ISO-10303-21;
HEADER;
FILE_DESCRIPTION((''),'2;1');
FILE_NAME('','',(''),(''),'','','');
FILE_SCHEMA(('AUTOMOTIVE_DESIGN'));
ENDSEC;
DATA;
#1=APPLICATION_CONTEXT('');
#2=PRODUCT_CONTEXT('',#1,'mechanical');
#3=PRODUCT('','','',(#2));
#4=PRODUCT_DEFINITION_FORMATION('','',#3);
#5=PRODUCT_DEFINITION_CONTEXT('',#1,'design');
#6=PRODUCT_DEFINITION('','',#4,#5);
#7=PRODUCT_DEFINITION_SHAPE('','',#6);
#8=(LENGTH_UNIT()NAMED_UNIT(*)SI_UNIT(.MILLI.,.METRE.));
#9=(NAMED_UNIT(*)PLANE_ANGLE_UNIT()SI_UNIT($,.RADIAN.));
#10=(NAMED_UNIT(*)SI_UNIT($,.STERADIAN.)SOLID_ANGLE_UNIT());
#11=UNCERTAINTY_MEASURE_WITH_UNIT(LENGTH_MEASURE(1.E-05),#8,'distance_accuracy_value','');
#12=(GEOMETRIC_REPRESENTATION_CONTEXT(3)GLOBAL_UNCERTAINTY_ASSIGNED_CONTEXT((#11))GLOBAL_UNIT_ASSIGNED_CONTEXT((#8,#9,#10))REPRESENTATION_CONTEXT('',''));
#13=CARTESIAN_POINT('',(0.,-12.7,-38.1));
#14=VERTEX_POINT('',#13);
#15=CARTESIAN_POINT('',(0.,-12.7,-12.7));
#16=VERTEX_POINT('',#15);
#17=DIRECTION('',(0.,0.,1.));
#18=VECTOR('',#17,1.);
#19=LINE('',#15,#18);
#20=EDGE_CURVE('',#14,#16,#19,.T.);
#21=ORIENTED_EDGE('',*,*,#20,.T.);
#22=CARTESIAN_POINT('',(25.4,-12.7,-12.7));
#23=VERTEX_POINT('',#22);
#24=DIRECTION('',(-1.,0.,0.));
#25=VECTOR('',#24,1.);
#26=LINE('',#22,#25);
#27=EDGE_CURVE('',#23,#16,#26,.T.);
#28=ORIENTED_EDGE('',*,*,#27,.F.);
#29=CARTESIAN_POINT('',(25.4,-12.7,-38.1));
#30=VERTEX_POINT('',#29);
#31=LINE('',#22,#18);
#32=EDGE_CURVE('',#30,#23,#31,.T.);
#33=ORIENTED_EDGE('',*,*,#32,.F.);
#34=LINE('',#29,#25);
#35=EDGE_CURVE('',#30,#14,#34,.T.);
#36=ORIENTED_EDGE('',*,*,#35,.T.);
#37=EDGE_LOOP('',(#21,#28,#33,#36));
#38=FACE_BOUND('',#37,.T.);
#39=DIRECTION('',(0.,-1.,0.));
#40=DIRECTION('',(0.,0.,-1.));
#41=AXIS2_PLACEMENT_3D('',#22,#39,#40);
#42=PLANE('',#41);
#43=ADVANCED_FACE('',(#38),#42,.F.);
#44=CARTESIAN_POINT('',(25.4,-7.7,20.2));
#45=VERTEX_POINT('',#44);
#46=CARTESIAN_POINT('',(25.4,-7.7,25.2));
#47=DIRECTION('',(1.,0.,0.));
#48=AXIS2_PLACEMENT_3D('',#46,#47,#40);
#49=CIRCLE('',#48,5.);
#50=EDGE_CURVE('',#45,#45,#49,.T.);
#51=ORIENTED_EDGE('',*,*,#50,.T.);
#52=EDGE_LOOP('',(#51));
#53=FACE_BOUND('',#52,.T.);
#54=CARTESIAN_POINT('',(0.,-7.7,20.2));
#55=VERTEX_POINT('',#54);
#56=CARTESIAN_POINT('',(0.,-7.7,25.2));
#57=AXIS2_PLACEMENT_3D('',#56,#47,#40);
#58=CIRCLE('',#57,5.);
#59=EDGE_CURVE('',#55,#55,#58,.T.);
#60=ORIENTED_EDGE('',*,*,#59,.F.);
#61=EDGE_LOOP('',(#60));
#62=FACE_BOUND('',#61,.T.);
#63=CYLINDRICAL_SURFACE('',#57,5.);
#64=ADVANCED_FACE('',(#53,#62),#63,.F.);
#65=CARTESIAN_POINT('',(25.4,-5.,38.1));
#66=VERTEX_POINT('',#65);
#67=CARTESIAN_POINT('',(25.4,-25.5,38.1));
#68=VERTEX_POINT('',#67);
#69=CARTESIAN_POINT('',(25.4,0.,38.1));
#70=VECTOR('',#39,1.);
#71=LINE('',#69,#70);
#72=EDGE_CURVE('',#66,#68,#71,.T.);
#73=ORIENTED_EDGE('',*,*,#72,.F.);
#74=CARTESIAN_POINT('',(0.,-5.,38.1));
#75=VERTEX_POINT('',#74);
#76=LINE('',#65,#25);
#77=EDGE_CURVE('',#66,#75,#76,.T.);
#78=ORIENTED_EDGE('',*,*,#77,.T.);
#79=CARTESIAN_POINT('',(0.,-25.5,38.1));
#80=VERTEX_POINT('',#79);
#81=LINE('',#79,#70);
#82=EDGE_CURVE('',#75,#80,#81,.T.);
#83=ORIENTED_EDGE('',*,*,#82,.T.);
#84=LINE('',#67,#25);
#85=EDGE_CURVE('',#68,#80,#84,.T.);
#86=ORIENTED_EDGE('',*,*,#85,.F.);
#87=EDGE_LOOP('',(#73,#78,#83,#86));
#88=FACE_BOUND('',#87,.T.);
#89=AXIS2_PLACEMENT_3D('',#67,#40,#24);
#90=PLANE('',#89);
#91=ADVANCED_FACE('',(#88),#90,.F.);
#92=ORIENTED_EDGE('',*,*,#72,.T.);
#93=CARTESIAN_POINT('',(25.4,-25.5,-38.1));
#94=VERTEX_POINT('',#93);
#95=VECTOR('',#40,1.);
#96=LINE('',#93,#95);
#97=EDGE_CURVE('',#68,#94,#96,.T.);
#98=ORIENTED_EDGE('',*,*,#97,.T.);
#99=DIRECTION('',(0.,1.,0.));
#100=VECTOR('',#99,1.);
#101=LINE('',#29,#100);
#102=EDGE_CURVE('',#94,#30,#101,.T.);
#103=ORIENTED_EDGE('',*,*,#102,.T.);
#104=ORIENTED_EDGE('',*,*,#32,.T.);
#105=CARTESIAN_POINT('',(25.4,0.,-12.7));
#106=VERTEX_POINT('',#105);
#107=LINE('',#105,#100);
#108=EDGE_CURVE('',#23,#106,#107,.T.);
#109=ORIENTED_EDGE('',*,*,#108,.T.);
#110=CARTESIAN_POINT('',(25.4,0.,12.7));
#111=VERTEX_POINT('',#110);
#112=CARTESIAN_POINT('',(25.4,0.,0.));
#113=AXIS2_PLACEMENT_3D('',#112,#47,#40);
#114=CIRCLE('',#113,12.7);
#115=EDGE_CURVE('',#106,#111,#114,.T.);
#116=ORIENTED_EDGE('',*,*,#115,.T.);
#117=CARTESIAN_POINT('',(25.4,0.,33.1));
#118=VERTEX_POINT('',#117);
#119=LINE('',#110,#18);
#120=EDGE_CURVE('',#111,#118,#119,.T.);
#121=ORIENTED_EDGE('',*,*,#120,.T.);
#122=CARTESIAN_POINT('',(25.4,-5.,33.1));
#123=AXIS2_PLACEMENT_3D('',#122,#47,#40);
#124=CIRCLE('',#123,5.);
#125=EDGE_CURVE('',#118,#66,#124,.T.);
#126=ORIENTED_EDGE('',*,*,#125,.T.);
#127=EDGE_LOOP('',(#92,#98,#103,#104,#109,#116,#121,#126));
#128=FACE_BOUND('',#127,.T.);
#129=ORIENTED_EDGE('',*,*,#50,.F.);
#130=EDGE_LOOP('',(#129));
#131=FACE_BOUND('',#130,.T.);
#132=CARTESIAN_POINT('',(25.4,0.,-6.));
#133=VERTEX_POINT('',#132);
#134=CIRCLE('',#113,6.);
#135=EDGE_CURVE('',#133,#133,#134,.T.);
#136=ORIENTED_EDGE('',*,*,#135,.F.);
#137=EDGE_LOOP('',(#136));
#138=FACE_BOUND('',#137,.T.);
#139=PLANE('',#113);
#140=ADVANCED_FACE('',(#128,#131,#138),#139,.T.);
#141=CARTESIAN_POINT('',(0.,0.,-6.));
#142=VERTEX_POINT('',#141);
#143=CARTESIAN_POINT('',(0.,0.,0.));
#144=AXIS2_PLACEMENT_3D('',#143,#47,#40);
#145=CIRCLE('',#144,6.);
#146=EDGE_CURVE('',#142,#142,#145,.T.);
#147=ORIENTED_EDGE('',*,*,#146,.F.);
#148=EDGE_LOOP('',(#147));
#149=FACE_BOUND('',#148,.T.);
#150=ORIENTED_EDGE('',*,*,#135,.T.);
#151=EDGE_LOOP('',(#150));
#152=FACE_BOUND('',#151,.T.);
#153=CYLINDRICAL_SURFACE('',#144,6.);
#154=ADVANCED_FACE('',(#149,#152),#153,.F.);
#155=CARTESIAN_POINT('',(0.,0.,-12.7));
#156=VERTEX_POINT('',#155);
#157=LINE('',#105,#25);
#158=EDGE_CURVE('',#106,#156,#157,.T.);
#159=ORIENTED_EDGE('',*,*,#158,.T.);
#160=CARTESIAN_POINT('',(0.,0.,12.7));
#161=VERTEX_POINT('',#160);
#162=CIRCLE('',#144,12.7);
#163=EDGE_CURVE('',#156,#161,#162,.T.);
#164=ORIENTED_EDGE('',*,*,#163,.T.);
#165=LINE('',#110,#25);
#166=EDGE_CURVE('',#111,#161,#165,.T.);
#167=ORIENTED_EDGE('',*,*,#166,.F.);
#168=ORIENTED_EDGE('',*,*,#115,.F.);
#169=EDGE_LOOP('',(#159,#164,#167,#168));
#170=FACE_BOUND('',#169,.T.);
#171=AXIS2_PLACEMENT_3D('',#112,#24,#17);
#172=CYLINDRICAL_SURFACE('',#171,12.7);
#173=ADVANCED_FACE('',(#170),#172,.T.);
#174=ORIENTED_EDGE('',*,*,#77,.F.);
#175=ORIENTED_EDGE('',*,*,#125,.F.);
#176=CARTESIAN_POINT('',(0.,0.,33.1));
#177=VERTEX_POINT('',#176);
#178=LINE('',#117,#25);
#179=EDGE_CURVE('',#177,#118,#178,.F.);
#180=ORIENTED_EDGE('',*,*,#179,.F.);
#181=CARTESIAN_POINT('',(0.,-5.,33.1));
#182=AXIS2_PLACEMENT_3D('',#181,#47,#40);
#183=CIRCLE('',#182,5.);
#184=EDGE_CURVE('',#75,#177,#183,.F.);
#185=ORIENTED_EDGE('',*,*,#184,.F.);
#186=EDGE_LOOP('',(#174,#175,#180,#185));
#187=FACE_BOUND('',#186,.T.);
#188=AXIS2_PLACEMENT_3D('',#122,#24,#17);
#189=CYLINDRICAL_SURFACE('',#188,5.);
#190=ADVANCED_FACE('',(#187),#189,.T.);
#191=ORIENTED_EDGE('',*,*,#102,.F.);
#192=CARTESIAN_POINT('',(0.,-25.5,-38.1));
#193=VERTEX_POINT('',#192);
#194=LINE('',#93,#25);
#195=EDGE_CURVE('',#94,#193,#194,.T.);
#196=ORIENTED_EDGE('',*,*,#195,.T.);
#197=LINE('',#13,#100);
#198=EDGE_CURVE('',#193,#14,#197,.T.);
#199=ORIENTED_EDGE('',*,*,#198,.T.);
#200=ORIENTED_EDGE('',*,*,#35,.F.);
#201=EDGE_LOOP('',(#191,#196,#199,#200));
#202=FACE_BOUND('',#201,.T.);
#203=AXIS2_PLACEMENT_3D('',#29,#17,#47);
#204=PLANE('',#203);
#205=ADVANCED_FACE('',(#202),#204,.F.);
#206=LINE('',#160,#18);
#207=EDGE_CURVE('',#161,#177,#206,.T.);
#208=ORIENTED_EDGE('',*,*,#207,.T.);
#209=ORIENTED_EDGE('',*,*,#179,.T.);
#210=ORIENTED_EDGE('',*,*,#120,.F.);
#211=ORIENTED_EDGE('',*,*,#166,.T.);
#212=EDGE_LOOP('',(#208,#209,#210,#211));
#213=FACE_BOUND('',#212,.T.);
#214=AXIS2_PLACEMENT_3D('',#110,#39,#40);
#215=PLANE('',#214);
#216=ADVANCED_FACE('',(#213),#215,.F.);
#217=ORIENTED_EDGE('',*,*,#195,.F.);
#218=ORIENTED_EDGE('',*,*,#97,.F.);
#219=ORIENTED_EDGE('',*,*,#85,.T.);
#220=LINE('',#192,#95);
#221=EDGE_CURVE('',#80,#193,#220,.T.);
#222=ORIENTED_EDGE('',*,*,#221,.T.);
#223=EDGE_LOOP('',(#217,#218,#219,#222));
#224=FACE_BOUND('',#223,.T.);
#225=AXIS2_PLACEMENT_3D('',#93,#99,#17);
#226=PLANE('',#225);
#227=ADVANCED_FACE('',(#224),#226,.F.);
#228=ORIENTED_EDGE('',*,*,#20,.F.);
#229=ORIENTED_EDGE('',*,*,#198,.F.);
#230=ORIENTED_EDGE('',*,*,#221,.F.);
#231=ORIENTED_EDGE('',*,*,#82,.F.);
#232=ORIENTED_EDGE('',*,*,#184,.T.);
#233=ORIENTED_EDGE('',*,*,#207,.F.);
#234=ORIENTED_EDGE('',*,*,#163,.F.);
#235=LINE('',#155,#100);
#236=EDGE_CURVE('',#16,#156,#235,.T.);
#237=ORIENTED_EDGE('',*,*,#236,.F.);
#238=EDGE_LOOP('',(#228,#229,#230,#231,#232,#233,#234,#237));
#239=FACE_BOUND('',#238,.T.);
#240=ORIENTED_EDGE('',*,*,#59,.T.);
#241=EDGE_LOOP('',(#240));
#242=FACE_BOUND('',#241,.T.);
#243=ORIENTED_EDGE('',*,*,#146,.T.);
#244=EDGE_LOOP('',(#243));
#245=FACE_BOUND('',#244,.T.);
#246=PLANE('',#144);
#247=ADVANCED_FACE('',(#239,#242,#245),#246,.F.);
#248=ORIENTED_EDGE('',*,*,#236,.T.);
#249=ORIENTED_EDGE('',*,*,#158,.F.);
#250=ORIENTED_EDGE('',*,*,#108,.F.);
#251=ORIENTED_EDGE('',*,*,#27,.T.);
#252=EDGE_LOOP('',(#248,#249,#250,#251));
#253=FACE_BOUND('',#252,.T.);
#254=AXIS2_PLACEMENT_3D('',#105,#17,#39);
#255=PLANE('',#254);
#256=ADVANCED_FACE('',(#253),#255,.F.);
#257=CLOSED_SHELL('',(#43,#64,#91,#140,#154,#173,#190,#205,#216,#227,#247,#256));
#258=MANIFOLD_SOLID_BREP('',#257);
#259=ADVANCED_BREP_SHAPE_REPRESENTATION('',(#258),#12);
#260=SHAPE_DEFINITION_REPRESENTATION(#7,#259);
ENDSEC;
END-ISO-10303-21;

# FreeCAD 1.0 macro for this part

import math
import FreeCAD as App
import Part
import Sketcher
from FreeCAD import Vector
Q = App.Units.Quantity


def edges_at(feature, points):
    """Names of the edges that pass closest to the given points."""
    edges = feature.Shape.Edges
    near = lambda p: min(range(len(edges)), key=lambda i: edges[i].distToShape(Part.Vertex(*p))[0])
    return sorted({f"Edge{near(p) + 1}" for p in points})

doc = App.newDocument("Part")
body = doc.addObject("PartDesign::Body", "Body")

# Sketch on YZ plane
sketch1 = body.newObject("Sketcher::SketchObject", "Sketch")
sketch1.AttachmentSupport = (doc.getObject("YZ_Plane"), [""])
sketch1.MapMode = "FlatFace"
sketch1.addGeometry([
    Part.LineSegment(Vector(-13, -13, 0), Vector(0, -13, 0)),  # 0
    Part.ArcOfCircle(Part.Circle(Vector(0, 0, 0), Vector(0, 0, 1), 13), math.radians(-90), math.radians(90)),  # 1
    Part.LineSegment(Vector(0, 13, 0), Vector(0, 38, 0)),  # 2
    Part.LineSegment(Vector(0, 38, 0), Vector(-26, 38, 0)),  # 3
    Part.LineSegment(Vector(-26, 38, 0), Vector(-26, -38, 0)),  # 4
    Part.LineSegment(Vector(-26, -38, 0), Vector(-13, -38, 0)),  # 5
    Part.LineSegment(Vector(-13, -38, 0), Vector(-13, -13, 0)),  # 6
], False)
sketch1.addConstraint([
    Sketcher.Constraint("Tangent", 0, 2, 1, 1),
    Sketcher.Constraint("Coincident", 1, 2, 2, 1),
    Sketcher.Constraint("Coincident", 2, 2, 3, 1),
    Sketcher.Constraint("Coincident", 3, 2, 4, 1),
    Sketcher.Constraint("Coincident", 4, 2, 5, 1),
    Sketcher.Constraint("Coincident", 5, 2, 6, 1),
    Sketcher.Constraint("Coincident", 6, 2, 0, 1),
    Sketcher.Constraint("Horizontal", 0),
    Sketcher.Constraint("Vertical", 2),
    Sketcher.Constraint("Horizontal", 3),
    Sketcher.Constraint("Vertical", 4),
    Sketcher.Constraint("Horizontal", 5),
    Sketcher.Constraint("Vertical", 6),
    Sketcher.Constraint("Coincident", 1, 3, -1, 1),
    Sketcher.Constraint("PointOnObject", 1, 2, -2),
    Sketcher.Constraint("Equal", 2, 6),
    Sketcher.Constraint("Radius", 1, Q("12.7 mm")),
    Sketcher.Constraint("DistanceX", 0, 1, 0, 2, Q("12.7 mm")),
    Sketcher.Constraint("DistanceX", 3, 2, 3, 1, Q("25.5 mm")),
    Sketcher.Constraint("DistanceY", 2, 1, 2, 2, Q("25.4 mm")),
])
pad1 = body.newObject("PartDesign::Pad", "Pad")
pad1.Profile = sketch1
pad1.Length = 25.4

# Sketch on YZ plane
sketch2 = body.newObject("Sketcher::SketchObject", "Sketch001")
sketch2.AttachmentSupport = (doc.getObject("YZ_Plane"), [""])
sketch2.MapMode = "FlatFace"
sketch2.AttachmentOffset = App.Placement(Vector(0, 0, 25.4), App.Rotation())
sketch2.addGeometry([
    Part.Circle(Vector(0, 0, 0), Vector(0, 0, 1), 6),
    Part.Circle(Vector(-8, 25, 0), Vector(0, 0, 1), 5),
], False)
sketch2.addConstraint([
    Sketcher.Constraint("Coincident", 0, 3, -1, 1),
    Sketcher.Constraint("Diameter", 0, Q("12 mm")),
    Sketcher.Constraint("Diameter", 1, Q("10 mm")),
    Sketcher.Constraint("DistanceX", 1, 3, -1, 1, Q("7.7 mm")),
    Sketcher.Constraint("DistanceY", -1, 1, 1, 3, Q("25.2 mm")),
])
pocket1 = body.newObject("PartDesign::Pocket", "Pocket")
pocket1.Profile = sketch2
pocket1.Type = "ThroughAll"
doc.recompute()

fillet = body.newObject("PartDesign::Fillet", "Fillet")
fillet.Base = (pocket1, edges_at(pocket1, [(12.7, 0, 38.1)]))
fillet.Radius = 5

doc.recompute()
